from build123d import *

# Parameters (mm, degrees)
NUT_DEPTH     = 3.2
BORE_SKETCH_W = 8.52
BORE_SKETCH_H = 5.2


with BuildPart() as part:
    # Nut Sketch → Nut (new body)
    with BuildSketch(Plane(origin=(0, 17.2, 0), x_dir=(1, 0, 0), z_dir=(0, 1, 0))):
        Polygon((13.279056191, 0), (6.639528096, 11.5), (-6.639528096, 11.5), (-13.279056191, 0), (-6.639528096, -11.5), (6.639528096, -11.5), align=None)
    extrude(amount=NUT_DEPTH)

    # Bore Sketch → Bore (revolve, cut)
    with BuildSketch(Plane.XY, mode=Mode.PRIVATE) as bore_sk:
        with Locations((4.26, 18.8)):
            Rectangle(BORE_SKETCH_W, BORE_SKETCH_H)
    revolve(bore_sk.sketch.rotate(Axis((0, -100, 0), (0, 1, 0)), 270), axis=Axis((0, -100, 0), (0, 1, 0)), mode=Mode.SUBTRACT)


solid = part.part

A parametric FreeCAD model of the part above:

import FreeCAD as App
import Part
import Sketcher
from FreeCAD import Vector
Q = App.Units.Quantity


def add_polygon(sketch, points):
    """Adds a closed chain of lines whose ends are joined by coincident constraints."""
    first, n = sketch.GeometryCount, len(points)
    for a, b in zip(points, points[1:] + points[:1]):
        sketch.addGeometry(Part.LineSegment(App.Vector(*a, 0), App.Vector(*b, 0)), False)
    for i in range(n):
        sketch.addConstraint(Sketcher.Constraint("Coincident", first + i, 2, first + (i + 1) % n, 1))

doc = App.newDocument("Part")
body = doc.addObject("PartDesign::Body", "Body")

sketch1 = body.newObject("Sketcher::SketchObject", "Sketch")
sketch1.AttachmentSupport = (doc.getObject("XZ_Plane"), [""])
sketch1.MapMode = "FlatFace"
sketch1.AttachmentOffset = App.Placement(Vector(0, 0, -17.2), App.Rotation())
add_polygon(sketch1, [(13, 0), (7, -12), (-7, -12), (-13, 0), (-7, 12), (7, 12)])
sketch1.addConstraint([
    Sketcher.Constraint("Horizontal", 1),
    Sketcher.Constraint("Horizontal", 4),
    Sketcher.Constraint("Symmetric", 0, 2, 3, 2, -1, 1),
    Sketcher.Constraint("Symmetric", 2, 2, 5, 2, -1, 1),
    Sketcher.Constraint("PointOnObject", 2, 2, -1),
    Sketcher.Constraint("Parallel", 2, 5),
    Sketcher.Constraint("Vertical", 1, 2, 3, 2),
    Sketcher.Constraint("Angle", 0, Q("-120 deg")),
    Sketcher.Constraint("DistanceY", 1, 2, 3, 2, Q("23 mm")),
    Sketcher.Constraint("DistanceX", 1, 2, 1, 1, Q("13.279056 mm")),
])
pad1 = body.newObject("PartDesign::Pad", "Pad")
pad1.Profile = sketch1
pad1.Length = 3.2
pad1.Reversed = True

sketch2 = body.newObject("Sketcher::SketchObject", "Sketch001")
sketch2.AttachmentSupport = (doc.getObject("XY_Plane"), [""])
sketch2.MapMode = "FlatFace"
add_polygon(sketch2, [(0, 21), (0, 16), (9, 16), (9, 21)])
sketch2.addConstraint([
    Sketcher.Constraint("Vertical", 0),
    Sketcher.Constraint("Horizontal", 1),
    Sketcher.Constraint("Vertical", 2),
    Sketcher.Constraint("Horizontal", 3),
    Sketcher.Constraint("PointOnObject", 0, 2, -2),
    Sketcher.Constraint("DistanceY", 0, 2, 0, 1, Q("5.2 mm")),
    Sketcher.Constraint("DistanceX", 1, 1, 1, 2, Q("8.52 mm")),
    Sketcher.Constraint("DistanceY", -1, 1, 0, 2, Q("16.2 mm")),
])
groove = body.newObject("PartDesign::Groove", "Groove")
groove.Profile = sketch2
groove.ReferenceAxis = (sketch2, ["V_Axis"])
groove.Angle = 360

doc.recompute()
